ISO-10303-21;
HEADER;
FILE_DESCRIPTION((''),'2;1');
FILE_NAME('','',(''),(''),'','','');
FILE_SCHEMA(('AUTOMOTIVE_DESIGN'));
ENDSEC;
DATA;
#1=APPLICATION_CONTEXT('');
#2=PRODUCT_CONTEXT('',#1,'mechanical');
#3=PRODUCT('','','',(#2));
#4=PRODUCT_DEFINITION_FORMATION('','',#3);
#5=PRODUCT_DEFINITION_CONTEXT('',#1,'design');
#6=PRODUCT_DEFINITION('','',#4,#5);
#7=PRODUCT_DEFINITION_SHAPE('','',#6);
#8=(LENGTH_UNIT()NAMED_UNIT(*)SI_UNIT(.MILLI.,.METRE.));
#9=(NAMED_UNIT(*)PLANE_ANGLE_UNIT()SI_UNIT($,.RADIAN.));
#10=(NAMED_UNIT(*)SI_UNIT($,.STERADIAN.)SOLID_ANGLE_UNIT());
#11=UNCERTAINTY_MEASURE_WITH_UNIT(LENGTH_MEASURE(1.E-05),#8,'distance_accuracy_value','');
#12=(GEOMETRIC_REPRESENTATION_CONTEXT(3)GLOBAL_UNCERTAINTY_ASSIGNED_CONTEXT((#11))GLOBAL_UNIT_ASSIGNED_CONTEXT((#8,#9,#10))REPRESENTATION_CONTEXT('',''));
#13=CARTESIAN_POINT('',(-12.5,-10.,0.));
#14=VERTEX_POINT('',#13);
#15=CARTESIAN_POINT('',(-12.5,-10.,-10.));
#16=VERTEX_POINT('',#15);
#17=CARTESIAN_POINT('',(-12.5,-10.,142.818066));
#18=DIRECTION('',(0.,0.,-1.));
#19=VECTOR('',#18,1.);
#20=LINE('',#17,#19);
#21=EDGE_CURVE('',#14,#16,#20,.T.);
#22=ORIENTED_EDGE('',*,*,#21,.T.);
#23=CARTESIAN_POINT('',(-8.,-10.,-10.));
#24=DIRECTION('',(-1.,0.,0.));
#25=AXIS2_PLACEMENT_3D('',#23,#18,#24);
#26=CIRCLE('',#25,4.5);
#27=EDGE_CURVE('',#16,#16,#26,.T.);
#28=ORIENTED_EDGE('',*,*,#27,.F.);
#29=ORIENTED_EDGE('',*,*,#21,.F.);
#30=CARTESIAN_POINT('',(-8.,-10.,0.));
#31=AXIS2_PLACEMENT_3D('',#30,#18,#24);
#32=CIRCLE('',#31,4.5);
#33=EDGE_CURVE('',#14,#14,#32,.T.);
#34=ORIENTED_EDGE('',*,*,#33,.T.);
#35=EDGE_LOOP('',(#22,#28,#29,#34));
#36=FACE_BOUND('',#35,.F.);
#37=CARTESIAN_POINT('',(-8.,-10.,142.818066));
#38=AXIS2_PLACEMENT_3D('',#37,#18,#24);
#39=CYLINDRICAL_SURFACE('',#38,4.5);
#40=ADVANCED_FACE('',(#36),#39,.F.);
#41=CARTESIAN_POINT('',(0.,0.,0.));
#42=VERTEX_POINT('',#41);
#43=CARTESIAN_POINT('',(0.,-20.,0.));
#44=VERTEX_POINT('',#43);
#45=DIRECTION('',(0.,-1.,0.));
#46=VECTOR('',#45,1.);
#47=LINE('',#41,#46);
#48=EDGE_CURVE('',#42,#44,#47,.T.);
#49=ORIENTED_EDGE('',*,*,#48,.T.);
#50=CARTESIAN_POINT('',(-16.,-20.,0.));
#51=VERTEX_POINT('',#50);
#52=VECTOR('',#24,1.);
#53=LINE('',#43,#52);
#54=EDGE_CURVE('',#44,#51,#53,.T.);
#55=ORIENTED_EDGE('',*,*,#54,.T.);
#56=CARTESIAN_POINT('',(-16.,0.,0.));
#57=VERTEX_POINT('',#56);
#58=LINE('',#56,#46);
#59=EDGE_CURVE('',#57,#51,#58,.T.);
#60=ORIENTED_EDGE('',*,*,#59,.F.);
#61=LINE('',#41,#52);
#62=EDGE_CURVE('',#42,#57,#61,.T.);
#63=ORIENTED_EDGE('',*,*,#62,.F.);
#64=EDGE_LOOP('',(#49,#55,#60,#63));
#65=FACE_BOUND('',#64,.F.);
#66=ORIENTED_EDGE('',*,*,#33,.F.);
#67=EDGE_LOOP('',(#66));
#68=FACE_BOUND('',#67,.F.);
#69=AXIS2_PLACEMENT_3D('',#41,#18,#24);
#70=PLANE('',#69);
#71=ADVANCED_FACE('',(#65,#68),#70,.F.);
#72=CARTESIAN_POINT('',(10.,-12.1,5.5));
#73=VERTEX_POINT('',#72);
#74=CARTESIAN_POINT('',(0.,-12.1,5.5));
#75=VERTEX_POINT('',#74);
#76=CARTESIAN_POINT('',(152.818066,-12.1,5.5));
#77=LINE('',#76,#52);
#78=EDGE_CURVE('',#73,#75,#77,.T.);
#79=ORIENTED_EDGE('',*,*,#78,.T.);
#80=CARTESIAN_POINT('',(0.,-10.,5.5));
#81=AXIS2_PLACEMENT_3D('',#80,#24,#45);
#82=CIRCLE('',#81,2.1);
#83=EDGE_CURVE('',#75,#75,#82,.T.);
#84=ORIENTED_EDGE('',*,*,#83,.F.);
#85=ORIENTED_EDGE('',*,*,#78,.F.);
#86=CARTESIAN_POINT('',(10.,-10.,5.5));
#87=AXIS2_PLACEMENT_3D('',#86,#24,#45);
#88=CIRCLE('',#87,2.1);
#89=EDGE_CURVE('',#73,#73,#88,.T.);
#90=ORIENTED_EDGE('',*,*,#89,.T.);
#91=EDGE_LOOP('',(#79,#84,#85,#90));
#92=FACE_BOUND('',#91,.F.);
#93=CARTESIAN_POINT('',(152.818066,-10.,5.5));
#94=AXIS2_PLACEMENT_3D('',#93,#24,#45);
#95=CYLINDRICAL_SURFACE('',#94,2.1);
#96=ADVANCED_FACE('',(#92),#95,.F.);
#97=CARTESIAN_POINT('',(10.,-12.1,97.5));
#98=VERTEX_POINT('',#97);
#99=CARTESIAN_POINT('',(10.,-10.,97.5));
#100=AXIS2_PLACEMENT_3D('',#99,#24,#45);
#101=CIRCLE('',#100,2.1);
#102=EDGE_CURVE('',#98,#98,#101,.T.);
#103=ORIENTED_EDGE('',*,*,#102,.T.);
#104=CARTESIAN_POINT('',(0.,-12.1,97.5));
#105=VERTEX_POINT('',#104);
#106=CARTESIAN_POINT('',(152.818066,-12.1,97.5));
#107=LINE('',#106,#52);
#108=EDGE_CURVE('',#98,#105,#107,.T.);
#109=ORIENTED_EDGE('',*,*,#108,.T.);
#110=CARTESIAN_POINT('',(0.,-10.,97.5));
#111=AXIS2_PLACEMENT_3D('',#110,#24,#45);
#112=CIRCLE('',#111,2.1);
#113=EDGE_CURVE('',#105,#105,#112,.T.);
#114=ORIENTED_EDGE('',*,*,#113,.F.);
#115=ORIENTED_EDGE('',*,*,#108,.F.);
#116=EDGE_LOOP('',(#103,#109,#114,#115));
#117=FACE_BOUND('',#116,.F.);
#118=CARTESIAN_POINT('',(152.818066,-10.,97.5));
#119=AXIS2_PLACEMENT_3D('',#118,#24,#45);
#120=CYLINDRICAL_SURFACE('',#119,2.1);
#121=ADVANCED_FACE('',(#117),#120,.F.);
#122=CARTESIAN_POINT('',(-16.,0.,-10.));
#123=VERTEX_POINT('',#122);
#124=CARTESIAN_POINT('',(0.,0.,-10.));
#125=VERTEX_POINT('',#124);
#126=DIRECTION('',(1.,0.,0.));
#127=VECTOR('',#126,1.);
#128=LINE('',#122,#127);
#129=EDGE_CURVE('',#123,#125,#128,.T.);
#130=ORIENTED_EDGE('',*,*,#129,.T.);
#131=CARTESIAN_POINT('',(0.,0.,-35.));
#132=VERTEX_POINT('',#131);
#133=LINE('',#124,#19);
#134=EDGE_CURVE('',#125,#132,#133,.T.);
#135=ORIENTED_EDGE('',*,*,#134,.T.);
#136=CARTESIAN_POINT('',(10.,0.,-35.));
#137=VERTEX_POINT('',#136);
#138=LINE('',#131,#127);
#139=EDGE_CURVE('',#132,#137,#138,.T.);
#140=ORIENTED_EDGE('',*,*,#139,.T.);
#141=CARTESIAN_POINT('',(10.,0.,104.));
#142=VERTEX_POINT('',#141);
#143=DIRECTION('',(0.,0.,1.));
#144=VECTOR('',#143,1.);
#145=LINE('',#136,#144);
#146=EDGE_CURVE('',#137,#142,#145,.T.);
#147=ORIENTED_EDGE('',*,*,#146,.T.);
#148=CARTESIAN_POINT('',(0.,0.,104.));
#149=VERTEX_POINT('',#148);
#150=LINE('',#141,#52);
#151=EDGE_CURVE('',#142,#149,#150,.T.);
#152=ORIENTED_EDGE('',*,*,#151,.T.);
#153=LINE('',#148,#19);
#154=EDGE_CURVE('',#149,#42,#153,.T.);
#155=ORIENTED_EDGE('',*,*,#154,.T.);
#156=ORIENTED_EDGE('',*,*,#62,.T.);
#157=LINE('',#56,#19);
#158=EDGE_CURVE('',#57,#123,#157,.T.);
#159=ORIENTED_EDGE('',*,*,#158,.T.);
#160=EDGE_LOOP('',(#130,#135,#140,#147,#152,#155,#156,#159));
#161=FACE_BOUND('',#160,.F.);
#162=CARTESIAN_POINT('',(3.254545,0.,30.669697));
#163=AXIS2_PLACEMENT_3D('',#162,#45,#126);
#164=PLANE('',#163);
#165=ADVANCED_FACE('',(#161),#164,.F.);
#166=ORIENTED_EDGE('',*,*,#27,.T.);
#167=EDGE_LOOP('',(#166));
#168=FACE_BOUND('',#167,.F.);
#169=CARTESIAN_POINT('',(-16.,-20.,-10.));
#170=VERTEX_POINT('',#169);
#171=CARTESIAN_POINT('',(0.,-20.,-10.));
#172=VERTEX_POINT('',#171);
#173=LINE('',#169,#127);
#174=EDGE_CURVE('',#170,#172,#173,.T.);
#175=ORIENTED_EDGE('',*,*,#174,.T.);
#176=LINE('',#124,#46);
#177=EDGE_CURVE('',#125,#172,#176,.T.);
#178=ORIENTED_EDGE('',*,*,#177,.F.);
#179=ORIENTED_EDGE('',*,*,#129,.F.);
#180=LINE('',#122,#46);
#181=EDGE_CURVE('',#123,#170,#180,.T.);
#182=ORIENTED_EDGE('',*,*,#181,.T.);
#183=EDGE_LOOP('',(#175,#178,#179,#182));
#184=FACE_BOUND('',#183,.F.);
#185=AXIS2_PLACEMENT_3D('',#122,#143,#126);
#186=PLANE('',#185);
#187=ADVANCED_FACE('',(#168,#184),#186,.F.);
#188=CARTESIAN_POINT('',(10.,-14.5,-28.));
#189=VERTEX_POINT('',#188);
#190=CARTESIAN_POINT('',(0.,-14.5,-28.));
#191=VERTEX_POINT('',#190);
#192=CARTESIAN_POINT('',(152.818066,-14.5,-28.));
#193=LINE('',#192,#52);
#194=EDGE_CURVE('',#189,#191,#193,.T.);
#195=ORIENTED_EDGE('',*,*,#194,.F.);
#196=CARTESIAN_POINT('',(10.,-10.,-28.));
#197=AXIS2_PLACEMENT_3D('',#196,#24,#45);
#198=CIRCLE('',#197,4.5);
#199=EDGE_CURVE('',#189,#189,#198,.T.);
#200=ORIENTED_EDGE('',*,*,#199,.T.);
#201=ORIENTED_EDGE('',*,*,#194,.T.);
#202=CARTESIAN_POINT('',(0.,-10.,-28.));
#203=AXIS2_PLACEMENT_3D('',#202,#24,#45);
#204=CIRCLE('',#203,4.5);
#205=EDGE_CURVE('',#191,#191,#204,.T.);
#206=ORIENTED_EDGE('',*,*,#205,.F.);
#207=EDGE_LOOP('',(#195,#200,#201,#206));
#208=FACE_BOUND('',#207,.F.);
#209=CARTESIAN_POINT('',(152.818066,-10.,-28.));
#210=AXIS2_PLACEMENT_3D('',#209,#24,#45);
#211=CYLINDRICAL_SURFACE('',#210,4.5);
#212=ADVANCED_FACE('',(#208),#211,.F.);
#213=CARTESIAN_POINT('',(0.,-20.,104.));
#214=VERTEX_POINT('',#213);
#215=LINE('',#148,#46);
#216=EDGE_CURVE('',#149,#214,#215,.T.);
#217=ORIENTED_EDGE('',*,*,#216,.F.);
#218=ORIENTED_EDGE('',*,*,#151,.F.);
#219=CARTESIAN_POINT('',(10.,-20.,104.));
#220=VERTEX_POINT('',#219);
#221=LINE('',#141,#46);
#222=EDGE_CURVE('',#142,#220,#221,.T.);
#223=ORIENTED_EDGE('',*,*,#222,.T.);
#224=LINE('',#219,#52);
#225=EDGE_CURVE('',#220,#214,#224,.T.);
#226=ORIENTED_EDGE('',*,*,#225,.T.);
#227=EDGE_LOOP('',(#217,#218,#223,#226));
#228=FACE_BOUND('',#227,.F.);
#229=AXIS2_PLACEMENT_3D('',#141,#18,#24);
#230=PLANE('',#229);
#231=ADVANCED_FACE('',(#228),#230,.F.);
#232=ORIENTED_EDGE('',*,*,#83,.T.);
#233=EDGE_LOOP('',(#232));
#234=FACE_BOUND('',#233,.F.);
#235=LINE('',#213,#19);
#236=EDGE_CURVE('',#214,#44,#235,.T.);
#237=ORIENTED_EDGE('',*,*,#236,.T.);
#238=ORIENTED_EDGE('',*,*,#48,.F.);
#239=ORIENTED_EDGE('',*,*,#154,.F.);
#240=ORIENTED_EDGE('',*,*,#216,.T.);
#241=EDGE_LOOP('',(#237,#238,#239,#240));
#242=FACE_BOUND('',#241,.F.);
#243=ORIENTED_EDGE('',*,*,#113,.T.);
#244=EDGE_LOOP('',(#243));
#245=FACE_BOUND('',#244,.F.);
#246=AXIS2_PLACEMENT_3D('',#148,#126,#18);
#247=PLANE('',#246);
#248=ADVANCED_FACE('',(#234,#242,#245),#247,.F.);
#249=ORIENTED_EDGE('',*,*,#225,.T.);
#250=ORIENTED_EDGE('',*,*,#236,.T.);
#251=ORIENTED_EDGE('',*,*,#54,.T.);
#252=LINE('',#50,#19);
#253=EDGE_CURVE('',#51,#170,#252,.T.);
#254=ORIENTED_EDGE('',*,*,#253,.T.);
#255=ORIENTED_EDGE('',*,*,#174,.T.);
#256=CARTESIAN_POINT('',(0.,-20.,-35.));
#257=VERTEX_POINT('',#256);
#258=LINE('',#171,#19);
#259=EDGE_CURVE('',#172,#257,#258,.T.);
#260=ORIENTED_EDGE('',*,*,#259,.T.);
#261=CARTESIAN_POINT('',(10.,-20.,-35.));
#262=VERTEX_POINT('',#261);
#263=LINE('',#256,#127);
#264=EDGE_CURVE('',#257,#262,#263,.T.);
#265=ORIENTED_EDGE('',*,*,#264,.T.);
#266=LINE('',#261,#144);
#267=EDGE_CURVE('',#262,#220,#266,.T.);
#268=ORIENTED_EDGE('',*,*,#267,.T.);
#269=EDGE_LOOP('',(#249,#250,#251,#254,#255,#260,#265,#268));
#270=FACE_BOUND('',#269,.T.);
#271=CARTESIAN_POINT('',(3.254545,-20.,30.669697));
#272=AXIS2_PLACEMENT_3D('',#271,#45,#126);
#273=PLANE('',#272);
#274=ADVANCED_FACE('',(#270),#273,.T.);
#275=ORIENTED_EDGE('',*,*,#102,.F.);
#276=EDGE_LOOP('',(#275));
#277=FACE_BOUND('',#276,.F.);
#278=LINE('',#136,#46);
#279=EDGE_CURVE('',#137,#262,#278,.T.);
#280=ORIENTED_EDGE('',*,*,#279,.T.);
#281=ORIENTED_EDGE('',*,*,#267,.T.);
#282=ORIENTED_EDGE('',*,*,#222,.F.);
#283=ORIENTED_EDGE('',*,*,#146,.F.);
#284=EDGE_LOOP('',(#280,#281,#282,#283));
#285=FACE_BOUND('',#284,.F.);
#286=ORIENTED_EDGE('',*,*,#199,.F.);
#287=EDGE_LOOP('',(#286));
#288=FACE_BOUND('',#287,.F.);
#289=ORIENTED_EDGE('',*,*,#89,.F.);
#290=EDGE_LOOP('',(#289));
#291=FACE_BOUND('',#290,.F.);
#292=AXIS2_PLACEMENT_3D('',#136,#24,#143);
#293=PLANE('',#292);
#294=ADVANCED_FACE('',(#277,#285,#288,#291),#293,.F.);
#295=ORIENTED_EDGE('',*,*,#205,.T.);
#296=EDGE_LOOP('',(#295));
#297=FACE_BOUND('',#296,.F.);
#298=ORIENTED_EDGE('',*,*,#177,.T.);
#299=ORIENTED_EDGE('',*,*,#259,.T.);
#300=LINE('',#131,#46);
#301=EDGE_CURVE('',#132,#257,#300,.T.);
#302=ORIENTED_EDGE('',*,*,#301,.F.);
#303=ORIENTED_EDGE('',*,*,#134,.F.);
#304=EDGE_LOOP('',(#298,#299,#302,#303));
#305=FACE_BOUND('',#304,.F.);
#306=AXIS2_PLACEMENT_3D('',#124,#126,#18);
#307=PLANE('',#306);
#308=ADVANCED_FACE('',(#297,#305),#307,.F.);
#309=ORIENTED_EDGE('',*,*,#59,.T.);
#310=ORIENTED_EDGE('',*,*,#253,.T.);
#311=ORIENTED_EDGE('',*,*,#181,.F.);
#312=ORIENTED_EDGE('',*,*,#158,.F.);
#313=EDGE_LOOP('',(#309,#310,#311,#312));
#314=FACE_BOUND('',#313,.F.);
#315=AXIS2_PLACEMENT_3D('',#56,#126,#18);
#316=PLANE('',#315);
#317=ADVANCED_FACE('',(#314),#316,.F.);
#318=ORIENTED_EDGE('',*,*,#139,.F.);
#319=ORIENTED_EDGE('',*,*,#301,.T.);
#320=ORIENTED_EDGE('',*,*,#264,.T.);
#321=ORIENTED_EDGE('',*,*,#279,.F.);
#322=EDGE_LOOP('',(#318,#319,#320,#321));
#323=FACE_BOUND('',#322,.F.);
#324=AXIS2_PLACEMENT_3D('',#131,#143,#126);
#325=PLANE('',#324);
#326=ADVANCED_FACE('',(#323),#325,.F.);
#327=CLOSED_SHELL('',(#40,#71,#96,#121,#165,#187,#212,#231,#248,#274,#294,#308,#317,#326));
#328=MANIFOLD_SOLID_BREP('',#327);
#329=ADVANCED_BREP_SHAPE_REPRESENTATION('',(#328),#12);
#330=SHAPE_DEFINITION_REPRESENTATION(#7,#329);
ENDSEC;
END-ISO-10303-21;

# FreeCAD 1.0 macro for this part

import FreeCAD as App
import Part
import Sketcher

V = App.Vector


def add_polygon(sketch, points):
    """Adds a closed chain of lines whose ends are joined by coincident constraints."""
    first, n = sketch.GeometryCount, len(points)
    for a, b in zip(points, points[1:] + points[:1]):
        sketch.addGeometry(Part.LineSegment(App.Vector(*a, 0), App.Vector(*b, 0)), False)
    for i in range(n):
        sketch.addConstraint(Sketcher.Constraint("Coincident", first + i, 2, first + (i + 1) % n, 1))

doc = App.newDocument("Part")
body = doc.addObject("PartDesign::Body", "Body")

# Sketch on XZ plane
sketch1 = body.newObject("Sketcher::SketchObject", "Sketch")
sketch1.AttachmentSupport = (doc.getObject("XZ_Plane"), [""])
sketch1.MapMode = "FlatFace"
add_polygon(sketch1, [(0, 104), (0, 0), (-16, 0), (-16, -10), (0, -10), (0, -35), (10, -35), (10, 104)])  # lines 0-7
sketch1.addConstraint([
    Sketcher.Constraint("Vertical", 0),
    Sketcher.Constraint("Horizontal", 1),
    Sketcher.Constraint("Vertical", 2),
    Sketcher.Constraint("Horizontal", 3),
    Sketcher.Constraint("Vertical", 4),
    Sketcher.Constraint("Horizontal", 5),
    Sketcher.Constraint("Vertical", 6),
    Sketcher.Constraint("Horizontal", 7),
    Sketcher.Constraint("Coincident", 0, 2, -1, 1),
    Sketcher.Constraint("PointOnObject", 3, 2, -2),
    Sketcher.Constraint("Equal", 7, 2),
    Sketcher.Constraint("DistanceX", 1, 2, 1, 1, 16.0),
    Sketcher.Constraint("DistanceX", 5, 1, 5, 2, 10.0),
    Sketcher.Constraint("DistanceY", 0, 2, 0, 1, 104.0),
    Sketcher.Constraint("DistanceY", 4, 2, 4, 1, 25.0),
])
pad1 = body.newObject("PartDesign::Pad", "Pad")
pad1.Profile = sketch1
pad1.Length = 20

# Sketch on XY plane
sketch2 = body.newObject("Sketcher::SketchObject", "Sketch001")
sketch2.AttachmentSupport = (doc.getObject("XY_Plane"), [""])
sketch2.MapMode = "FlatFace"
sketch2.addGeometry(Part.Circle(V(-8, -10, 0), V(0, 0, 1), 4.5), False)
sketch2.addConstraint([
    Sketcher.Constraint("Diameter", 0, 9.0),
    Sketcher.Constraint("DistanceX", 0, 3, -1, 1, 8.0),
    Sketcher.Constraint("DistanceY", 0, 3, -1, 1, 10.0),
])
doc.recompute()
hole = body.newObject("PartDesign::Hole", "Hole")
hole.Profile = sketch2
hole.ThreadType = "None"
hole.Diameter = 9
hole.DepthType = "ThroughAll"

# Sketch on YZ plane
sketch3 = body.newObject("Sketcher::SketchObject", "Sketch002")
sketch3.AttachmentSupport = (doc.getObject("YZ_Plane"), [""])
sketch3.MapMode = "FlatFace"
sketch3.AttachmentOffset = App.Placement(V(0, 0, 10), App.Rotation())
sketch3.addGeometry(Part.Circle(V(-10, -28, 0), V(0, 0, 1), 4.5), False)
sketch3.addConstraint([
    Sketcher.Constraint("Diameter", 0, 9.0),
    Sketcher.Constraint("DistanceX", 0, 3, -1, 1, 10.0),
    Sketcher.Constraint("DistanceY", 0, 3, -1, 1, 28.0),
])
doc.recompute()
hole2 = body.newObject("PartDesign::Hole", "Hole001")
hole2.Profile = sketch3
hole2.ThreadType = "None"
hole2.Diameter = 9
hole2.DepthType = "ThroughAll"

# Sketch on YZ plane
sketch4 = body.newObject("Sketcher::SketchObject", "Sketch003")
sketch4.AttachmentSupport = (doc.getObject("YZ_Plane"), [""])
sketch4.MapMode = "FlatFace"
sketch4.AttachmentOffset = App.Placement(V(0, 0, 10), App.Rotation())
sketch4.addGeometry([
    Part.Circle(V(-10, 97.5, 0), V(0, 0, 1), 2.1),
    Part.Circle(V(-10, 5.5, 0), V(0, 0, 1), 2.1),
], False)
sketch4.addConstraint([
    Sketcher.Constraint("Equal", 0, 1),
    Sketcher.Constraint("Vertical", 0, 3, 1, 3),
    Sketcher.Constraint("Diameter", 0, 4.2),
    Sketcher.Constraint("DistanceX", 0, 3, -1, 1, 10.0),
    Sketcher.Constraint("DistanceY", 1, 3, 0, 3, 92.0),
    Sketcher.Constraint("DistanceY", -1, 1, 0, 3, 97.5),
])
doc.recompute()
hole3 = body.newObject("PartDesign::Hole", "Hole002")
hole3.Profile = sketch4
hole3.ThreadType = "None"
hole3.Diameter = 4.2
hole3.DepthType = "ThroughAll"

doc.recompute()
